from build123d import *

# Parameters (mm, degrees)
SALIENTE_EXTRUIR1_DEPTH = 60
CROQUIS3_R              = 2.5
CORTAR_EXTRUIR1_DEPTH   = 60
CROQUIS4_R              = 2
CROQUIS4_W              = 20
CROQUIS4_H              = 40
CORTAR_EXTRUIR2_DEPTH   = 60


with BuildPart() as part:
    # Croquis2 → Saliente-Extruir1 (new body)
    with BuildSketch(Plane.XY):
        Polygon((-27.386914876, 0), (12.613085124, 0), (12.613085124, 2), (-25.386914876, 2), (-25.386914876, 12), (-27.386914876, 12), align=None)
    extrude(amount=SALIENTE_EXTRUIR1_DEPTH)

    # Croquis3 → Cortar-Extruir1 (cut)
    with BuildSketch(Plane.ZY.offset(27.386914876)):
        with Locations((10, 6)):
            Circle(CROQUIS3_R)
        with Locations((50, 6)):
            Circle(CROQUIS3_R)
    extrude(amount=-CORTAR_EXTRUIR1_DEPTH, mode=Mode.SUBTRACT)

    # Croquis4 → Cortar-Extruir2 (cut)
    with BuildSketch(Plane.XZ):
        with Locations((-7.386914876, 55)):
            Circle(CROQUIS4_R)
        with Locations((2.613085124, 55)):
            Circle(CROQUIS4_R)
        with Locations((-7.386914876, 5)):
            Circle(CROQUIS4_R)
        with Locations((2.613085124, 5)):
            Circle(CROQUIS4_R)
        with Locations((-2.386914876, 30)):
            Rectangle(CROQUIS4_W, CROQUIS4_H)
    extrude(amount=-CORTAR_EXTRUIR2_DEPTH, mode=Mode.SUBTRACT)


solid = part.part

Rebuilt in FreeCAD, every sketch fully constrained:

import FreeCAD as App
import Part
import Sketcher


def add_polygon(sketch, points):
    """Adds a closed chain of lines whose ends are joined by coincident constraints."""
    first, n = sketch.GeometryCount, len(points)
    for a, b in zip(points, points[1:] + points[:1]):
        sketch.addGeometry(Part.LineSegment(App.Vector(*a, 0), App.Vector(*b, 0)), False)
    for i in range(n):
        sketch.addConstraint(Sketcher.Constraint("Coincident", first + i, 2, first + (i + 1) % n, 1))

doc = App.newDocument("Part")
body = doc.addObject("PartDesign::Body", "Body")

sketch1 = body.newObject("Sketcher::SketchObject", "Sketch")
sketch1.AttachmentSupport = (doc.getObject("XY_Plane"), [""])
sketch1.MapMode = "FlatFace"
add_polygon(sketch1, [(-27.4, 0), (12.6, 0), (12.6, 2), (-25.4, 2), (-25.4, 12), (-27.4, 12)])
sketch1.addConstraint(Sketcher.Constraint("Horizontal", 0))
sketch1.addConstraint(Sketcher.Constraint("Vertical", 1))
sketch1.addConstraint(Sketcher.Constraint("Horizontal", 2))
sketch1.addConstraint(Sketcher.Constraint("Vertical", 3))
sketch1.addConstraint(Sketcher.Constraint("Horizontal", 4))
sketch1.addConstraint(Sketcher.Constraint("Vertical", 5))
sketch1.addConstraint(Sketcher.Constraint("PointOnObject", 0, 2, -1))
sketch1.addConstraint(Sketcher.Constraint("Equal", 4, 1))
sketch1.addConstraint(Sketcher.Constraint("DistanceX", 0, 1, 0, 2, 40.0))
sketch1.addConstraint(Sketcher.Constraint("DistanceX", 2, 2, 2, 1, 38.0))
sketch1.addConstraint(Sketcher.Constraint("DistanceY", 3, 1, 3, 2, 10.0))
sketch1.addConstraint(Sketcher.Constraint("DistanceX", -1, 1, 0, 2, 12.613085))
pad1 = body.newObject("PartDesign::Pad", "Pad")
pad1.Profile = sketch1
pad1.Length = 60

sketch2 = body.newObject("Sketcher::SketchObject", "Sketch001")
sketch2.AttachmentSupport = (doc.getObject("YZ_Plane"), [""])
sketch2.MapMode = "FlatFace"
sketch2.AttachmentOffset = App.Placement(App.Vector(0, 0, -27.386915), App.Rotation())
sketch2.addGeometry(Part.Circle(App.Vector(6, 10, 0), App.Vector(0, 0, 1), 2.5), False)
sketch2.addGeometry(Part.Circle(App.Vector(6, 50, 0), App.Vector(0, 0, 1), 2.5), False)
sketch2.addConstraint(Sketcher.Constraint("Equal", 0, 1))
sketch2.addConstraint(Sketcher.Constraint("Vertical", 0, 3, 1, 3))
sketch2.addConstraint(Sketcher.Constraint("Diameter", 0, 5.0))
sketch2.addConstraint(Sketcher.Constraint("DistanceX", -1, 1, 0, 3, 6.0))
sketch2.addConstraint(Sketcher.Constraint("DistanceY", -1, 1, 0, 3, 10.0))
sketch2.addConstraint(Sketcher.Constraint("DistanceY", -1, 1, 1, 3, 50.0))
pocket1 = body.newObject("PartDesign::Pocket", "Pocket")
pocket1.Profile = sketch2
pocket1.Length = 60
pocket1.Reversed = True

sketch3 = body.newObject("Sketcher::SketchObject", "Sketch002")
sketch3.AttachmentSupport = (doc.getObject("XZ_Plane"), [""])
sketch3.MapMode = "FlatFace"
sketch3.addGeometry(Part.Circle(App.Vector(-7.4, 55, 0), App.Vector(0, 0, 1), 2), False)
sketch3.addGeometry(Part.Circle(App.Vector(2.6, 55, 0), App.Vector(0, 0, 1), 2), False)
sketch3.addGeometry(Part.Circle(App.Vector(-7.4, 5, 0), App.Vector(0, 0, 1), 2), False)
sketch3.addGeometry(Part.Circle(App.Vector(2.6, 5, 0), App.Vector(0, 0, 1), 2), False)
add_polygon(sketch3, [(-12.4, 50), (-12.4, 10), (7.6, 10), (7.6, 50)])
sketch3.addConstraint(Sketcher.Constraint("Vertical", 4))
sketch3.addConstraint(Sketcher.Constraint("Horizontal", 5))
sketch3.addConstraint(Sketcher.Constraint("Vertical", 6))
sketch3.addConstraint(Sketcher.Constraint("Horizontal", 7))
sketch3.addConstraint(Sketcher.Constraint("Equal", 0, 1))
sketch3.addConstraint(Sketcher.Constraint("Equal", 1, 2))
sketch3.addConstraint(Sketcher.Constraint("Equal", 2, 3))
sketch3.addConstraint(Sketcher.Constraint("Horizontal", 0, 3, 1, 3))
sketch3.addConstraint(Sketcher.Constraint("Horizontal", 2, 3, 3, 3))
sketch3.addConstraint(Sketcher.Constraint("Vertical", 0, 3, 2, 3))
sketch3.addConstraint(Sketcher.Constraint("Vertical", 1, 3, 3, 3))
sketch3.addConstraint(Sketcher.Constraint("Diameter", 0, 4.0))
sketch3.addConstraint(Sketcher.Constraint("DistanceX", 5, 1, 5, 2, 20.0))
sketch3.addConstraint(Sketcher.Constraint("DistanceY", 4, 2, 4, 1, 40.0))
sketch3.addConstraint(Sketcher.Constraint("DistanceY", -1, 1, 0, 3, 55.0))
sketch3.addConstraint(Sketcher.Constraint("DistanceY", -1, 1, 2, 3, 5.0))
sketch3.addConstraint(Sketcher.Constraint("DistanceY", -1, 1, 4, 2, 10.0))
sketch3.addConstraint(Sketcher.Constraint("DistanceX", 0, 3, 1, 3, 10.0))
sketch3.addConstraint(Sketcher.Constraint("DistanceX", 4, 2, 2, 3, 5.0))
sketch3.addConstraint(Sketcher.Constraint("DistanceX", 0, 3, -1, 1, 7.386915))
pocket2 = body.newObject("PartDesign::Pocket", "Pocket001")
pocket2.Profile = sketch3
pocket2.Length = 60

doc.recompute()
